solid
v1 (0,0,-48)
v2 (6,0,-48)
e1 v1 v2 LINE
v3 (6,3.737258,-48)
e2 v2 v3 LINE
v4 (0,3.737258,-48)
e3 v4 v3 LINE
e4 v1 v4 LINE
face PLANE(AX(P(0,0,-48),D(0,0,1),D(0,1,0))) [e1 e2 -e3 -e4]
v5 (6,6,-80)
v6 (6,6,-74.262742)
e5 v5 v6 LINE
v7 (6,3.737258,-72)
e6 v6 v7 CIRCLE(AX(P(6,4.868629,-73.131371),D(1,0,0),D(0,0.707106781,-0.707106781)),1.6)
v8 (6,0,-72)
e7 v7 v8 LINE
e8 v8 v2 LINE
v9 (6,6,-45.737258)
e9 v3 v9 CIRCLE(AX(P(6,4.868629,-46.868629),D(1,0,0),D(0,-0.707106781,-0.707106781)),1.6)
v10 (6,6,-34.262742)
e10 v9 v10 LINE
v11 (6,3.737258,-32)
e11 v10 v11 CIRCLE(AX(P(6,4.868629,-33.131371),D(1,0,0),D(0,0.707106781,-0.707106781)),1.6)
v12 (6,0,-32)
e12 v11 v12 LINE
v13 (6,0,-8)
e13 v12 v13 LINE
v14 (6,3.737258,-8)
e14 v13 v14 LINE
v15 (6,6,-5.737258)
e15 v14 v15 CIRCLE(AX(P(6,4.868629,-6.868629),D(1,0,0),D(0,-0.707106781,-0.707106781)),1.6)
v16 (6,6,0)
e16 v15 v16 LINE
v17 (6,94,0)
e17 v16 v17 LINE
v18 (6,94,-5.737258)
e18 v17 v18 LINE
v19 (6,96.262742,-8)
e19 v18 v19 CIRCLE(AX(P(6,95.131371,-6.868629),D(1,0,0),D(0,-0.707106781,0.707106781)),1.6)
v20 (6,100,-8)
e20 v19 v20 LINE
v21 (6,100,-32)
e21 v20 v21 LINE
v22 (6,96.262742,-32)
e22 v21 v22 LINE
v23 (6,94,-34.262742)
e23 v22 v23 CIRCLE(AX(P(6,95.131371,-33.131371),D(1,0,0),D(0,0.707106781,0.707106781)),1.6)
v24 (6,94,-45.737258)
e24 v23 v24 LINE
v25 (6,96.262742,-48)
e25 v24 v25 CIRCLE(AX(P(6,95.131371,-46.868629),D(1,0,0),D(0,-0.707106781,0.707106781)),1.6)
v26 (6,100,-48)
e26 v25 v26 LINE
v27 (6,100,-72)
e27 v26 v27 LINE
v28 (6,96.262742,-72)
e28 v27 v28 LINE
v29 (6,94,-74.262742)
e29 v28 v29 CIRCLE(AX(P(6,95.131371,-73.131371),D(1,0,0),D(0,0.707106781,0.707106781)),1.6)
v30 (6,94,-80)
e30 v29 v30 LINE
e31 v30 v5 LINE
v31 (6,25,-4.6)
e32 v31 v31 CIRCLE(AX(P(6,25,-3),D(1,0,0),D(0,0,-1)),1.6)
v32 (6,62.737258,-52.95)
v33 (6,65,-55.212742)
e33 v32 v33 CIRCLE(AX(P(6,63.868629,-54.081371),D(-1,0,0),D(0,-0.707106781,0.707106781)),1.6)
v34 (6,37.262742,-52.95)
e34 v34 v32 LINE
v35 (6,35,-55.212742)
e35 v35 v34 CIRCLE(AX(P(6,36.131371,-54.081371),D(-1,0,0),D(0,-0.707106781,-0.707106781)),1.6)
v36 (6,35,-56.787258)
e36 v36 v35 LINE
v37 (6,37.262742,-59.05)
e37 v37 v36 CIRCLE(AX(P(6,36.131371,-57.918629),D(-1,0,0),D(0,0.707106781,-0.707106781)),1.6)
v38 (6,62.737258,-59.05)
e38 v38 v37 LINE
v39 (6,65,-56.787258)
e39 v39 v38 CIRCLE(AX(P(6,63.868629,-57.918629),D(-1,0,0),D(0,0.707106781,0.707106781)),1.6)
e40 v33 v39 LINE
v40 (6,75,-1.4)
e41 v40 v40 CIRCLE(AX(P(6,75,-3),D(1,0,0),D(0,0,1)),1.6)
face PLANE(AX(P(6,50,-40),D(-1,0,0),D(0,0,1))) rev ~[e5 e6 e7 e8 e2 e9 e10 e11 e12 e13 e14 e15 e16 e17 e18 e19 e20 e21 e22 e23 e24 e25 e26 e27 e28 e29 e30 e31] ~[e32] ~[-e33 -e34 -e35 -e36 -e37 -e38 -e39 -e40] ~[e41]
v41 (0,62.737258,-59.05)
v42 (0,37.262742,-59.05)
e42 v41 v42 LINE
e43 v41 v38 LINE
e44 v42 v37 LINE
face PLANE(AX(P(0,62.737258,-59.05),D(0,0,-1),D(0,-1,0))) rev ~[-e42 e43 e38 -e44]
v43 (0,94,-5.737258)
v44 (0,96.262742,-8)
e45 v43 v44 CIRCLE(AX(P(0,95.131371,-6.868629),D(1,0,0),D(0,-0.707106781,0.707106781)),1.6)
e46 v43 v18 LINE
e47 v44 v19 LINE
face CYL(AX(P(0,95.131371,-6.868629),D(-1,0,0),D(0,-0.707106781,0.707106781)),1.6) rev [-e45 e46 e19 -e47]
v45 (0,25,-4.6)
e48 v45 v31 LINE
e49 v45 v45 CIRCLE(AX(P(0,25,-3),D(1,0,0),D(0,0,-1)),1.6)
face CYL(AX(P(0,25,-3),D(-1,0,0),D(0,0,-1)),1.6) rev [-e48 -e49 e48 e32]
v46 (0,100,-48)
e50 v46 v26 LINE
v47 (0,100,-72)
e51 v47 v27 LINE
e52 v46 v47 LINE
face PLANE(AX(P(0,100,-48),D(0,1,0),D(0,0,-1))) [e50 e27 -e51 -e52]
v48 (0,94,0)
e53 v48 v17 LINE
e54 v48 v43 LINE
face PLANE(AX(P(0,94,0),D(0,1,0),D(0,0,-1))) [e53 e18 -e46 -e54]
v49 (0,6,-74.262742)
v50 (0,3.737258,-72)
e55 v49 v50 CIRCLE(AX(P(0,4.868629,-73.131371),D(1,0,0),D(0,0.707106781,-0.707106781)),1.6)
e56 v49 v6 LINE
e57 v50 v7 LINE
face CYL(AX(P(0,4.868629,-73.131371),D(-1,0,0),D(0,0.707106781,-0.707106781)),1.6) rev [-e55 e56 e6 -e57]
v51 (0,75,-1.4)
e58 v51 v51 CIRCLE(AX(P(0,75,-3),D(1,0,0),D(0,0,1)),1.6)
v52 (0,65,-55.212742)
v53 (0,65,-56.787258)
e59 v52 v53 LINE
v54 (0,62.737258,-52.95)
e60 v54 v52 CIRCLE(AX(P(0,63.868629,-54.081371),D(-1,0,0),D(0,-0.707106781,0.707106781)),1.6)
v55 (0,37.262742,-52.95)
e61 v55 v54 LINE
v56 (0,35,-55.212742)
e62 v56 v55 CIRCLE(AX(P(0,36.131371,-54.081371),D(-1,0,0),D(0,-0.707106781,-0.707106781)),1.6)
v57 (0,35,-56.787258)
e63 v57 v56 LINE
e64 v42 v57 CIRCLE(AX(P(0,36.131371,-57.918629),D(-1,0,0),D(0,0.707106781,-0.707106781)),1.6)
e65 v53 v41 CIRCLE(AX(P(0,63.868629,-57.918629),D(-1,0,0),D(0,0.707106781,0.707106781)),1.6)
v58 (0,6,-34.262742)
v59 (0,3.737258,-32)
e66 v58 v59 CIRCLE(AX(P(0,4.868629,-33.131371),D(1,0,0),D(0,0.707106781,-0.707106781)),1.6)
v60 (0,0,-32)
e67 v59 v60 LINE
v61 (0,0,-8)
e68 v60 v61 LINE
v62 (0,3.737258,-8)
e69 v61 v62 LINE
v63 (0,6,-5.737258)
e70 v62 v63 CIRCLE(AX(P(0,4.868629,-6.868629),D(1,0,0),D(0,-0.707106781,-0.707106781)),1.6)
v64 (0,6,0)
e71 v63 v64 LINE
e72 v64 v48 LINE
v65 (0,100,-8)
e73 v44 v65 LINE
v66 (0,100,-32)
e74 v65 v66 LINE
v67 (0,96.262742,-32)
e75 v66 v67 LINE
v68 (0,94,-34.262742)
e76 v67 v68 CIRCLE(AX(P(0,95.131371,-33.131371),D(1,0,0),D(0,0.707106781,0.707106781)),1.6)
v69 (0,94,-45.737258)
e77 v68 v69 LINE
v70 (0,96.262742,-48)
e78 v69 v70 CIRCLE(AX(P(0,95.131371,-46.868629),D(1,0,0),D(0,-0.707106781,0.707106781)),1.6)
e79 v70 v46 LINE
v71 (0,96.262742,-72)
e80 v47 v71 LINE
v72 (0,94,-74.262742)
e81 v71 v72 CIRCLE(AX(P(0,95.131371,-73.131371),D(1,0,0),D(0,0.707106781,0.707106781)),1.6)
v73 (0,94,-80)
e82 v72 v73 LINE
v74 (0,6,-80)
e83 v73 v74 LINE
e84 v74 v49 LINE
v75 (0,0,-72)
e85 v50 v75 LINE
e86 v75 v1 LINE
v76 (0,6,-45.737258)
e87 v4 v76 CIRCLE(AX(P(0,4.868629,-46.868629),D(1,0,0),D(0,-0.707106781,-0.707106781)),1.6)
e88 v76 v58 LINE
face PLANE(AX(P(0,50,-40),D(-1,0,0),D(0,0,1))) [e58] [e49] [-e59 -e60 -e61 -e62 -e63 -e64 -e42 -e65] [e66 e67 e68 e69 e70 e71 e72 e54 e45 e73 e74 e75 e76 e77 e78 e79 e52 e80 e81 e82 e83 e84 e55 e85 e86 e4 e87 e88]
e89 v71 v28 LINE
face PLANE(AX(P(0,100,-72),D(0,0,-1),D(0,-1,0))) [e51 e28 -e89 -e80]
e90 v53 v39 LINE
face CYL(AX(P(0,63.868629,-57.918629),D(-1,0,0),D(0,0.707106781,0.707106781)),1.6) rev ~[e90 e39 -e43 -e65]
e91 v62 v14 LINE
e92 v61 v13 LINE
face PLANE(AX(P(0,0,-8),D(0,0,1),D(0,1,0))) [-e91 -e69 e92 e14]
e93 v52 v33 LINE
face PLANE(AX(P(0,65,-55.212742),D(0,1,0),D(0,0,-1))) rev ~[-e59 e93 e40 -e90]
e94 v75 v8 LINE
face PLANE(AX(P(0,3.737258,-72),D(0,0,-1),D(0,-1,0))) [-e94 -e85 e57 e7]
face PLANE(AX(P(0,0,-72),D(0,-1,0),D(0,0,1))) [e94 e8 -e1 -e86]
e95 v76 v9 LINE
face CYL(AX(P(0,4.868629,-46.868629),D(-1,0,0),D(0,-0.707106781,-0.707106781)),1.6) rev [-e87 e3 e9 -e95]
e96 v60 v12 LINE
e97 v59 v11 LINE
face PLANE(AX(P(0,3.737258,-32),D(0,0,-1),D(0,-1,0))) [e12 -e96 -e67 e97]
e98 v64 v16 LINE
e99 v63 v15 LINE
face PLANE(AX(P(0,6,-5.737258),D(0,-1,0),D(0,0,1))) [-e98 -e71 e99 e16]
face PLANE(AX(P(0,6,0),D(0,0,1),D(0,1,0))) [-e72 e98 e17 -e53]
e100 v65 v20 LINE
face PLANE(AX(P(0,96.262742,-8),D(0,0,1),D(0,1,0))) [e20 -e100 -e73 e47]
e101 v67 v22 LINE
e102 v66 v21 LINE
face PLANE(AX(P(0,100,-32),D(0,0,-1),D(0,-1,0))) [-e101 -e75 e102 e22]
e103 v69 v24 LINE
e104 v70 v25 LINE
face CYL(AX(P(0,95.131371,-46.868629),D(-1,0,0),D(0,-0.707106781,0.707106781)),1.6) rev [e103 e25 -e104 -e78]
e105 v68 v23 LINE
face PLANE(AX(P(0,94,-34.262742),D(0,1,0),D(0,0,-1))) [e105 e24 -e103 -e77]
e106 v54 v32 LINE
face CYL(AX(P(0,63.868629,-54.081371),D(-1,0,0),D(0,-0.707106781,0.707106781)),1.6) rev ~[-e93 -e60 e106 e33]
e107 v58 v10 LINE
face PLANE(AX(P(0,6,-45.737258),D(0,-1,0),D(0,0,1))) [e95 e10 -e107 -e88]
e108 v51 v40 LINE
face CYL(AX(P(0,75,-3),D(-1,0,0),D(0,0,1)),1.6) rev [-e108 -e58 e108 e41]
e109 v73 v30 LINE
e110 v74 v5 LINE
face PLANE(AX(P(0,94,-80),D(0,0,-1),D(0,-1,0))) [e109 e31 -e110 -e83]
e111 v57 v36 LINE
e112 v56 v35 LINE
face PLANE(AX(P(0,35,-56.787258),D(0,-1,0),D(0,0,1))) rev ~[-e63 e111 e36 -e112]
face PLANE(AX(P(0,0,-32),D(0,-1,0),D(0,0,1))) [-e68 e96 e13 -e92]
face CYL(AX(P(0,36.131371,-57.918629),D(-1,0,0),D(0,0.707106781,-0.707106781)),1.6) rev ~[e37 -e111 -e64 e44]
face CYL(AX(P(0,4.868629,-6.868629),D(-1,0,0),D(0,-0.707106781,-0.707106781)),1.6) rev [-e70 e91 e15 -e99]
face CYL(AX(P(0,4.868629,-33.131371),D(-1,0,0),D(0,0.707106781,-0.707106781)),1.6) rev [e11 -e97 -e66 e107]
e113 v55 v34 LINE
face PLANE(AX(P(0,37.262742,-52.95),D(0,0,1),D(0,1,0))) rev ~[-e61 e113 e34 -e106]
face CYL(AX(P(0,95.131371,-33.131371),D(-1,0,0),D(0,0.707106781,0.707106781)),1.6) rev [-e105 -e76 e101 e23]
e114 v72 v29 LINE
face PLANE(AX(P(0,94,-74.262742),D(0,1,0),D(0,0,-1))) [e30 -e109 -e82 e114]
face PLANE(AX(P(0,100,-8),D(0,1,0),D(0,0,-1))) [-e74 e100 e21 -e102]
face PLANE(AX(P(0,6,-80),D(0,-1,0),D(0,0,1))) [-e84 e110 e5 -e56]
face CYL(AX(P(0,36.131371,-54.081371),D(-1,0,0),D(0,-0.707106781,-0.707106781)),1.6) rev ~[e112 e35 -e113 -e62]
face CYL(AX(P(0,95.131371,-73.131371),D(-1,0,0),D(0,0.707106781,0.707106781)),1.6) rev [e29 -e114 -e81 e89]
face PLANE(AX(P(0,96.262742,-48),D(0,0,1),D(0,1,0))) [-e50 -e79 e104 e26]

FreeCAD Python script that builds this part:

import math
import FreeCAD as App
import Part
import Sketcher

V = App.Vector

doc = App.newDocument("Part")
body = doc.addObject("PartDesign::Body", "Body")

sketch1 = doc.addObject("Sketcher::SketchObject", "Sketch")
body.addObject(sketch1)
sketch1.AttachmentSupport = (doc.YZ_Plane, [""])
sketch1.MapMode = "FlatFace"
sketch1.addGeometry(Part.LineSegment(V(94, -5.737258, 0), V(94, 0, 0)), False)
sketch1.addGeometry(Part.LineSegment(V(94, 0, 0), V(6, 0, 0)), False)
sketch1.addGeometry(Part.LineSegment(V(6, 0, 0), V(6, -5.737258, 0)), False)
sketch1.addGeometry(Part.ArcOfCircle(Part.Circle(V(4.868629, -6.868629, 0), V(0, 0, 1), 1.6), math.radians(-135), math.radians(45)), False)
sketch1.addGeometry(Part.LineSegment(V(3.737258, -8, 0), V(0, -8, 0)), False)
sketch1.addGeometry(Part.LineSegment(V(0, -8, 0), V(0, -32, 0)), False)
sketch1.addGeometry(Part.LineSegment(V(0, -32, 0), V(3.737258, -32, 0)), False)
sketch1.addGeometry(Part.ArcOfCircle(Part.Circle(V(4.868629, -33.131371, 0), V(0, 0, 1), 1.6), math.radians(-45), math.radians(135)), False)
sketch1.addGeometry(Part.LineSegment(V(6, -34.262742, 0), V(6, -45.737258, 0)), False)
sketch1.addGeometry(Part.ArcOfCircle(Part.Circle(V(4.868629, -46.868629, 0), V(0, 0, 1), 1.6), math.radians(-135), math.radians(45)), False)
sketch1.addGeometry(Part.LineSegment(V(3.737258, -48, 0), V(0, -48, 0)), False)
sketch1.addGeometry(Part.LineSegment(V(0, -48, 0), V(0, -72, 0)), False)
sketch1.addGeometry(Part.LineSegment(V(0, -72, 0), V(3.737258, -72, 0)), False)
sketch1.addGeometry(Part.ArcOfCircle(Part.Circle(V(4.868629, -73.131371, 0), V(0, 0, 1), 1.6), math.radians(-45), math.radians(135)), False)
sketch1.addGeometry(Part.LineSegment(V(6, -74.262742, 0), V(6, -80, 0)), False)
sketch1.addGeometry(Part.LineSegment(V(6, -80, 0), V(94, -80, 0)), False)
sketch1.addGeometry(Part.LineSegment(V(94, -80, 0), V(94, -74.262742, 0)), False)
sketch1.addGeometry(Part.ArcOfCircle(Part.Circle(V(95.131371, -73.131371, 0), V(0, 0, 1), 1.6), math.radians(45), math.radians(225)), False)
sketch1.addGeometry(Part.LineSegment(V(96.262742, -72, 0), V(100, -72, 0)), False)
sketch1.addGeometry(Part.LineSegment(V(100, -72, 0), V(100, -48, 0)), False)
sketch1.addGeometry(Part.LineSegment(V(100, -48, 0), V(96.262742, -48, 0)), False)
sketch1.addGeometry(Part.ArcOfCircle(Part.Circle(V(95.131371, -46.868629, 0), V(0, 0, 1), 1.6), math.radians(135), math.radians(315)), False)
sketch1.addGeometry(Part.LineSegment(V(94, -45.737258, 0), V(94, -34.262742, 0)), False)
sketch1.addGeometry(Part.ArcOfCircle(Part.Circle(V(95.131371, -33.131371, 0), V(0, 0, 1), 1.6), math.radians(45), math.radians(225)), False)
sketch1.addGeometry(Part.LineSegment(V(96.262742, -32, 0), V(100, -32, 0)), False)
sketch1.addGeometry(Part.LineSegment(V(100, -32, 0), V(100, -8, 0)), False)
sketch1.addGeometry(Part.LineSegment(V(100, -8, 0), V(96.262742, -8, 0)), False)
sketch1.addGeometry(Part.ArcOfCircle(Part.Circle(V(95.131371, -6.868629, 0), V(0, 0, 1), 1.6), math.radians(135), math.radians(315)), False)
sketch1.addGeometry(Part.Circle(V(25, -3, 0), V(0, 0, 1), 1.6), False)
sketch1.addGeometry(Part.LineSegment(V(65, -55.212742, 0), V(65, -56.787258, 0)), False)
sketch1.addGeometry(Part.ArcOfCircle(Part.Circle(V(63.868629, -57.918629, 0), V(0, 0, 1), 1.6), math.radians(-135), math.radians(45)), False)
sketch1.addGeometry(Part.LineSegment(V(62.737258, -59.05, 0), V(37.262742, -59.05, 0)), False)
sketch1.addGeometry(Part.ArcOfCircle(Part.Circle(V(36.131371, -57.918629, 0), V(0, 0, 1), 1.6), math.radians(135), math.radians(315)), False)
sketch1.addGeometry(Part.LineSegment(V(35, -56.787258, 0), V(35, -55.212742, 0)), False)
sketch1.addGeometry(Part.ArcOfCircle(Part.Circle(V(36.131371, -54.081371, 0), V(0, 0, 1), 1.6), math.radians(45), math.radians(225)), False)
sketch1.addGeometry(Part.LineSegment(V(37.262742, -52.95, 0), V(62.737258, -52.95, 0)), False)
sketch1.addGeometry(Part.ArcOfCircle(Part.Circle(V(63.868629, -54.081371, 0), V(0, 0, 1), 1.6), math.radians(-45), math.radians(135)), False)
sketch1.addGeometry(Part.Circle(V(75, -3, 0), V(0, 0, 1), 1.6), False)
sketch1.addConstraint(Sketcher.Constraint("Coincident", 0, 2, 1, 1))
sketch1.addConstraint(Sketcher.Constraint("Coincident", 1, 2, 2, 1))
sketch1.addConstraint(Sketcher.Constraint("Coincident", 2, 2, 3, 2))
sketch1.addConstraint(Sketcher.Constraint("Coincident", 3, 1, 4, 1))
sketch1.addConstraint(Sketcher.Constraint("Coincident", 4, 2, 5, 1))
sketch1.addConstraint(Sketcher.Constraint("Coincident", 5, 2, 6, 1))
sketch1.addConstraint(Sketcher.Constraint("Coincident", 6, 2, 7, 2))
sketch1.addConstraint(Sketcher.Constraint("Coincident", 7, 1, 8, 1))
sketch1.addConstraint(Sketcher.Constraint("Coincident", 8, 2, 9, 2))
sketch1.addConstraint(Sketcher.Constraint("Coincident", 9, 1, 10, 1))
sketch1.addConstraint(Sketcher.Constraint("Coincident", 10, 2, 11, 1))
sketch1.addConstraint(Sketcher.Constraint("Coincident", 11, 2, 12, 1))
sketch1.addConstraint(Sketcher.Constraint("Coincident", 12, 2, 13, 2))
sketch1.addConstraint(Sketcher.Constraint("Coincident", 13, 1, 14, 1))
sketch1.addConstraint(Sketcher.Constraint("Coincident", 14, 2, 15, 1))
sketch1.addConstraint(Sketcher.Constraint("Coincident", 15, 2, 16, 1))
sketch1.addConstraint(Sketcher.Constraint("Coincident", 16, 2, 17, 2))
sketch1.addConstraint(Sketcher.Constraint("Coincident", 17, 1, 18, 1))
sketch1.addConstraint(Sketcher.Constraint("Coincident", 18, 2, 19, 1))
sketch1.addConstraint(Sketcher.Constraint("Coincident", 19, 2, 20, 1))
sketch1.addConstraint(Sketcher.Constraint("Coincident", 20, 2, 21, 2))
sketch1.addConstraint(Sketcher.Constraint("Coincident", 21, 1, 22, 1))
sketch1.addConstraint(Sketcher.Constraint("Coincident", 22, 2, 23, 2))
sketch1.addConstraint(Sketcher.Constraint("Coincident", 23, 1, 24, 1))
sketch1.addConstraint(Sketcher.Constraint("Coincident", 24, 2, 25, 1))
sketch1.addConstraint(Sketcher.Constraint("Coincident", 25, 2, 26, 1))
sketch1.addConstraint(Sketcher.Constraint("Coincident", 26, 2, 27, 2))
sketch1.addConstraint(Sketcher.Constraint("Coincident", 27, 1, 0, 1))
sketch1.addConstraint(Sketcher.Constraint("Coincident", 29, 2, 30, 2))
sketch1.addConstraint(Sketcher.Constraint("Coincident", 30, 1, 31, 1))
sketch1.addConstraint(Sketcher.Constraint("Coincident", 31, 2, 32, 2))
sketch1.addConstraint(Sketcher.Constraint("Coincident", 32, 1, 33, 1))
sketch1.addConstraint(Sketcher.Constraint("Coincident", 33, 2, 34, 2))
sketch1.addConstraint(Sketcher.Constraint("Coincident", 34, 1, 35, 1))
sketch1.addConstraint(Sketcher.Constraint("Coincident", 35, 2, 36, 2))
sketch1.addConstraint(Sketcher.Constraint("Coincident", 36, 1, 29, 1))
sketch1.addConstraint(Sketcher.Constraint("Vertical", 0))
sketch1.addConstraint(Sketcher.Constraint("Horizontal", 1))
sketch1.addConstraint(Sketcher.Constraint("Vertical", 2))
sketch1.addConstraint(Sketcher.Constraint("Horizontal", 4))
sketch1.addConstraint(Sketcher.Constraint("Vertical", 5))
sketch1.addConstraint(Sketcher.Constraint("Horizontal", 6))
sketch1.addConstraint(Sketcher.Constraint("Vertical", 8))
sketch1.addConstraint(Sketcher.Constraint("Horizontal", 10))
sketch1.addConstraint(Sketcher.Constraint("Vertical", 11))
sketch1.addConstraint(Sketcher.Constraint("Horizontal", 12))
sketch1.addConstraint(Sketcher.Constraint("Vertical", 14))
sketch1.addConstraint(Sketcher.Constraint("Horizontal", 15))
sketch1.addConstraint(Sketcher.Constraint("Vertical", 16))
sketch1.addConstraint(Sketcher.Constraint("Horizontal", 18))
sketch1.addConstraint(Sketcher.Constraint("Vertical", 19))
sketch1.addConstraint(Sketcher.Constraint("Horizontal", 20))
sketch1.addConstraint(Sketcher.Constraint("Vertical", 22))
sketch1.addConstraint(Sketcher.Constraint("Horizontal", 24))
sketch1.addConstraint(Sketcher.Constraint("Vertical", 25))
sketch1.addConstraint(Sketcher.Constraint("Horizontal", 26))
sketch1.addConstraint(Sketcher.Constraint("Vertical", 29))
sketch1.addConstraint(Sketcher.Constraint("Horizontal", 31))
sketch1.addConstraint(Sketcher.Constraint("Vertical", 33))
sketch1.addConstraint(Sketcher.Constraint("Horizontal", 35))
sketch1.addConstraint(Sketcher.Constraint("Equal", 3, 7))
sketch1.addConstraint(Sketcher.Constraint("Equal", 7, 9))
sketch1.addConstraint(Sketcher.Constraint("Equal", 9, 13))
sketch1.addConstraint(Sketcher.Constraint("Equal", 13, 17))
sketch1.addConstraint(Sketcher.Constraint("Equal", 17, 21))
sketch1.addConstraint(Sketcher.Constraint("Equal", 21, 23))
sketch1.addConstraint(Sketcher.Constraint("Equal", 23, 27))
sketch1.addConstraint(Sketcher.Constraint("Equal", 27, 28))
sketch1.addConstraint(Sketcher.Constraint("Equal", 28, 30))
sketch1.addConstraint(Sketcher.Constraint("Equal", 30, 32))
sketch1.addConstraint(Sketcher.Constraint("Equal", 32, 34))
sketch1.addConstraint(Sketcher.Constraint("Equal", 34, 36))
sketch1.addConstraint(Sketcher.Constraint("Equal", 36, 37))
sketch1.addConstraint(Sketcher.Constraint("PointOnObject", 0, 2, -1))
sketch1.addConstraint(Sketcher.Constraint("PointOnObject", 4, 2, -2))
sketch1.addConstraint(Sketcher.Constraint("PointOnObject", 10, 2, -2))
sketch1.addConstraint(Sketcher.Constraint("Horizontal", 13, 3, 17, 3))
sketch1.addConstraint(Sketcher.Constraint("Horizontal", 9, 3, 21, 3))
sketch1.addConstraint(Sketcher.Constraint("Horizontal", 7, 3, 23, 3))
sketch1.addConstraint(Sketcher.Constraint("Horizontal", 3, 3, 27, 3))
sketch1.addConstraint(Sketcher.Constraint("Horizontal", 30, 3, 32, 3))
sketch1.addConstraint(Sketcher.Constraint("Horizontal", 34, 3, 36, 3))
sketch1.addConstraint(Sketcher.Constraint("Horizontal", 28, 3, 37, 3))
sketch1.addConstraint(Sketcher.Constraint("Horizontal", 13, 1, 16, 2))
sketch1.addConstraint(Sketcher.Constraint("Horizontal", 12, 2, 17, 1))
sketch1.addConstraint(Sketcher.Constraint("Horizontal", 10, 2, 19, 2))
sketch1.addConstraint(Sketcher.Constraint("Horizontal", 8, 2, 21, 1))
sketch1.addConstraint(Sketcher.Constraint("Horizontal", 7, 1, 22, 2))
sketch1.addConstraint(Sketcher.Constraint("Horizontal", 6, 2, 23, 1))
sketch1.addConstraint(Sketcher.Constraint("Horizontal", 4, 2, 25, 2))
sketch1.addConstraint(Sketcher.Constraint("Horizontal", 2, 2, 27, 1))
sketch1.addConstraint(Sketcher.Constraint("Horizontal", 29, 2, 32, 1))
sketch1.addConstraint(Sketcher.Constraint("Horizontal", 33, 2, 36, 1))
sketch1.addConstraint(Sketcher.Constraint("Vertical", 3, 3, 7, 3))
sketch1.addConstraint(Sketcher.Constraint("Vertical", 7, 3, 9, 3))
sketch1.addConstraint(Sketcher.Constraint("Vertical", 9, 3, 13, 3))
sketch1.addConstraint(Sketcher.Constraint("Vertical", 17, 3, 21, 3))
sketch1.addConstraint(Sketcher.Constraint("Vertical", 23, 3, 27, 3))
sketch1.addConstraint(Sketcher.Constraint("Vertical", 32, 3, 34, 3))
sketch1.addConstraint(Sketcher.Constraint("Vertical", 3, 1, 6, 2))
sketch1.addConstraint(Sketcher.Constraint("Vertical", 2, 2, 7, 1))
sketch1.addConstraint(Sketcher.Constraint("Vertical", 6, 2, 9, 1))
sketch1.addConstraint(Sketcher.Constraint("Vertical", 9, 1, 12, 2))
sketch1.addConstraint(Sketcher.Constraint("Vertical", 8, 2, 13, 1))
sketch1.addConstraint(Sketcher.Constraint("Vertical", 19, 2, 24, 2))
sketch1.addConstraint(Sketcher.Constraint("Vertical", 31, 2, 34, 1))
sketch1.addConstraint(Sketcher.Constraint("Equal", 12, 18))
sketch1.addConstraint(Sketcher.Constraint("Equal", 5, 11))
sketch1.addConstraint(Sketcher.Constraint("Equal", 2, 14))
sketch1.addConstraint(Sketcher.Constraint("Diameter", 28, 3.2))
sketch1.addConstraint(Sketcher.Constraint("DistanceX", 1, 2, 1, 1, 88.0))
sketch1.addConstraint(Sketcher.Constraint("DistanceY", 5, 2, 5, 1, 24.0))
sketch1.addConstraint(Sketcher.Constraint("DistanceX", -1, 1, 28, 3, 25.0))
sketch1.addConstraint(Sketcher.Constraint("DistanceY", 28, 3, -1, 1, 3.0))
sketch1.addConstraint(Sketcher.Constraint("DistanceX", -1, 1, 37, 3, 75.0))
sketch1.addConstraint(Sketcher.Constraint("DistanceX", -1, 1, 0, 2, 94.0))
sketch1.addConstraint(Sketcher.Constraint("DistanceY", 3, 1, -1, 1, 8.0))
sketch1.addConstraint(Sketcher.Constraint("DistanceY", 9, 1, -1, 1, 48.0))
sketch1.addConstraint(Sketcher.Constraint("DistanceX", -1, 1, 29, 2, 65.0))
sketch1.addConstraint(Sketcher.Constraint("DistanceX", -1, 1, 32, 1, 35.0))
sketch1.addConstraint(Sketcher.Constraint("DistanceX", 9, 3, 30, 3, 59.0))
sketch1.addConstraint(Sketcher.Constraint("DistanceY", 31, 2, 34, 1, 6.1))
sketch1.addConstraint(Sketcher.Constraint("DistanceY", 30, 1, -1, 1, 59.05))
sketch1.addConstraint(Sketcher.Constraint("DistanceY", 30, 3, 21, 3, 11.05))
sketch1.addConstraint(Sketcher.Constraint("DistanceX", 4, 2, 4, 1, 3.737258))
sketch1.addConstraint(Sketcher.Constraint("DistanceX", -1, 1, 3, 3, 4.868629))
pad1 = doc.addObject("PartDesign::Pad", "Pad")
body.addObject(pad1)
pad1.Profile = sketch1
pad1.Length = 6

doc.recompute()
